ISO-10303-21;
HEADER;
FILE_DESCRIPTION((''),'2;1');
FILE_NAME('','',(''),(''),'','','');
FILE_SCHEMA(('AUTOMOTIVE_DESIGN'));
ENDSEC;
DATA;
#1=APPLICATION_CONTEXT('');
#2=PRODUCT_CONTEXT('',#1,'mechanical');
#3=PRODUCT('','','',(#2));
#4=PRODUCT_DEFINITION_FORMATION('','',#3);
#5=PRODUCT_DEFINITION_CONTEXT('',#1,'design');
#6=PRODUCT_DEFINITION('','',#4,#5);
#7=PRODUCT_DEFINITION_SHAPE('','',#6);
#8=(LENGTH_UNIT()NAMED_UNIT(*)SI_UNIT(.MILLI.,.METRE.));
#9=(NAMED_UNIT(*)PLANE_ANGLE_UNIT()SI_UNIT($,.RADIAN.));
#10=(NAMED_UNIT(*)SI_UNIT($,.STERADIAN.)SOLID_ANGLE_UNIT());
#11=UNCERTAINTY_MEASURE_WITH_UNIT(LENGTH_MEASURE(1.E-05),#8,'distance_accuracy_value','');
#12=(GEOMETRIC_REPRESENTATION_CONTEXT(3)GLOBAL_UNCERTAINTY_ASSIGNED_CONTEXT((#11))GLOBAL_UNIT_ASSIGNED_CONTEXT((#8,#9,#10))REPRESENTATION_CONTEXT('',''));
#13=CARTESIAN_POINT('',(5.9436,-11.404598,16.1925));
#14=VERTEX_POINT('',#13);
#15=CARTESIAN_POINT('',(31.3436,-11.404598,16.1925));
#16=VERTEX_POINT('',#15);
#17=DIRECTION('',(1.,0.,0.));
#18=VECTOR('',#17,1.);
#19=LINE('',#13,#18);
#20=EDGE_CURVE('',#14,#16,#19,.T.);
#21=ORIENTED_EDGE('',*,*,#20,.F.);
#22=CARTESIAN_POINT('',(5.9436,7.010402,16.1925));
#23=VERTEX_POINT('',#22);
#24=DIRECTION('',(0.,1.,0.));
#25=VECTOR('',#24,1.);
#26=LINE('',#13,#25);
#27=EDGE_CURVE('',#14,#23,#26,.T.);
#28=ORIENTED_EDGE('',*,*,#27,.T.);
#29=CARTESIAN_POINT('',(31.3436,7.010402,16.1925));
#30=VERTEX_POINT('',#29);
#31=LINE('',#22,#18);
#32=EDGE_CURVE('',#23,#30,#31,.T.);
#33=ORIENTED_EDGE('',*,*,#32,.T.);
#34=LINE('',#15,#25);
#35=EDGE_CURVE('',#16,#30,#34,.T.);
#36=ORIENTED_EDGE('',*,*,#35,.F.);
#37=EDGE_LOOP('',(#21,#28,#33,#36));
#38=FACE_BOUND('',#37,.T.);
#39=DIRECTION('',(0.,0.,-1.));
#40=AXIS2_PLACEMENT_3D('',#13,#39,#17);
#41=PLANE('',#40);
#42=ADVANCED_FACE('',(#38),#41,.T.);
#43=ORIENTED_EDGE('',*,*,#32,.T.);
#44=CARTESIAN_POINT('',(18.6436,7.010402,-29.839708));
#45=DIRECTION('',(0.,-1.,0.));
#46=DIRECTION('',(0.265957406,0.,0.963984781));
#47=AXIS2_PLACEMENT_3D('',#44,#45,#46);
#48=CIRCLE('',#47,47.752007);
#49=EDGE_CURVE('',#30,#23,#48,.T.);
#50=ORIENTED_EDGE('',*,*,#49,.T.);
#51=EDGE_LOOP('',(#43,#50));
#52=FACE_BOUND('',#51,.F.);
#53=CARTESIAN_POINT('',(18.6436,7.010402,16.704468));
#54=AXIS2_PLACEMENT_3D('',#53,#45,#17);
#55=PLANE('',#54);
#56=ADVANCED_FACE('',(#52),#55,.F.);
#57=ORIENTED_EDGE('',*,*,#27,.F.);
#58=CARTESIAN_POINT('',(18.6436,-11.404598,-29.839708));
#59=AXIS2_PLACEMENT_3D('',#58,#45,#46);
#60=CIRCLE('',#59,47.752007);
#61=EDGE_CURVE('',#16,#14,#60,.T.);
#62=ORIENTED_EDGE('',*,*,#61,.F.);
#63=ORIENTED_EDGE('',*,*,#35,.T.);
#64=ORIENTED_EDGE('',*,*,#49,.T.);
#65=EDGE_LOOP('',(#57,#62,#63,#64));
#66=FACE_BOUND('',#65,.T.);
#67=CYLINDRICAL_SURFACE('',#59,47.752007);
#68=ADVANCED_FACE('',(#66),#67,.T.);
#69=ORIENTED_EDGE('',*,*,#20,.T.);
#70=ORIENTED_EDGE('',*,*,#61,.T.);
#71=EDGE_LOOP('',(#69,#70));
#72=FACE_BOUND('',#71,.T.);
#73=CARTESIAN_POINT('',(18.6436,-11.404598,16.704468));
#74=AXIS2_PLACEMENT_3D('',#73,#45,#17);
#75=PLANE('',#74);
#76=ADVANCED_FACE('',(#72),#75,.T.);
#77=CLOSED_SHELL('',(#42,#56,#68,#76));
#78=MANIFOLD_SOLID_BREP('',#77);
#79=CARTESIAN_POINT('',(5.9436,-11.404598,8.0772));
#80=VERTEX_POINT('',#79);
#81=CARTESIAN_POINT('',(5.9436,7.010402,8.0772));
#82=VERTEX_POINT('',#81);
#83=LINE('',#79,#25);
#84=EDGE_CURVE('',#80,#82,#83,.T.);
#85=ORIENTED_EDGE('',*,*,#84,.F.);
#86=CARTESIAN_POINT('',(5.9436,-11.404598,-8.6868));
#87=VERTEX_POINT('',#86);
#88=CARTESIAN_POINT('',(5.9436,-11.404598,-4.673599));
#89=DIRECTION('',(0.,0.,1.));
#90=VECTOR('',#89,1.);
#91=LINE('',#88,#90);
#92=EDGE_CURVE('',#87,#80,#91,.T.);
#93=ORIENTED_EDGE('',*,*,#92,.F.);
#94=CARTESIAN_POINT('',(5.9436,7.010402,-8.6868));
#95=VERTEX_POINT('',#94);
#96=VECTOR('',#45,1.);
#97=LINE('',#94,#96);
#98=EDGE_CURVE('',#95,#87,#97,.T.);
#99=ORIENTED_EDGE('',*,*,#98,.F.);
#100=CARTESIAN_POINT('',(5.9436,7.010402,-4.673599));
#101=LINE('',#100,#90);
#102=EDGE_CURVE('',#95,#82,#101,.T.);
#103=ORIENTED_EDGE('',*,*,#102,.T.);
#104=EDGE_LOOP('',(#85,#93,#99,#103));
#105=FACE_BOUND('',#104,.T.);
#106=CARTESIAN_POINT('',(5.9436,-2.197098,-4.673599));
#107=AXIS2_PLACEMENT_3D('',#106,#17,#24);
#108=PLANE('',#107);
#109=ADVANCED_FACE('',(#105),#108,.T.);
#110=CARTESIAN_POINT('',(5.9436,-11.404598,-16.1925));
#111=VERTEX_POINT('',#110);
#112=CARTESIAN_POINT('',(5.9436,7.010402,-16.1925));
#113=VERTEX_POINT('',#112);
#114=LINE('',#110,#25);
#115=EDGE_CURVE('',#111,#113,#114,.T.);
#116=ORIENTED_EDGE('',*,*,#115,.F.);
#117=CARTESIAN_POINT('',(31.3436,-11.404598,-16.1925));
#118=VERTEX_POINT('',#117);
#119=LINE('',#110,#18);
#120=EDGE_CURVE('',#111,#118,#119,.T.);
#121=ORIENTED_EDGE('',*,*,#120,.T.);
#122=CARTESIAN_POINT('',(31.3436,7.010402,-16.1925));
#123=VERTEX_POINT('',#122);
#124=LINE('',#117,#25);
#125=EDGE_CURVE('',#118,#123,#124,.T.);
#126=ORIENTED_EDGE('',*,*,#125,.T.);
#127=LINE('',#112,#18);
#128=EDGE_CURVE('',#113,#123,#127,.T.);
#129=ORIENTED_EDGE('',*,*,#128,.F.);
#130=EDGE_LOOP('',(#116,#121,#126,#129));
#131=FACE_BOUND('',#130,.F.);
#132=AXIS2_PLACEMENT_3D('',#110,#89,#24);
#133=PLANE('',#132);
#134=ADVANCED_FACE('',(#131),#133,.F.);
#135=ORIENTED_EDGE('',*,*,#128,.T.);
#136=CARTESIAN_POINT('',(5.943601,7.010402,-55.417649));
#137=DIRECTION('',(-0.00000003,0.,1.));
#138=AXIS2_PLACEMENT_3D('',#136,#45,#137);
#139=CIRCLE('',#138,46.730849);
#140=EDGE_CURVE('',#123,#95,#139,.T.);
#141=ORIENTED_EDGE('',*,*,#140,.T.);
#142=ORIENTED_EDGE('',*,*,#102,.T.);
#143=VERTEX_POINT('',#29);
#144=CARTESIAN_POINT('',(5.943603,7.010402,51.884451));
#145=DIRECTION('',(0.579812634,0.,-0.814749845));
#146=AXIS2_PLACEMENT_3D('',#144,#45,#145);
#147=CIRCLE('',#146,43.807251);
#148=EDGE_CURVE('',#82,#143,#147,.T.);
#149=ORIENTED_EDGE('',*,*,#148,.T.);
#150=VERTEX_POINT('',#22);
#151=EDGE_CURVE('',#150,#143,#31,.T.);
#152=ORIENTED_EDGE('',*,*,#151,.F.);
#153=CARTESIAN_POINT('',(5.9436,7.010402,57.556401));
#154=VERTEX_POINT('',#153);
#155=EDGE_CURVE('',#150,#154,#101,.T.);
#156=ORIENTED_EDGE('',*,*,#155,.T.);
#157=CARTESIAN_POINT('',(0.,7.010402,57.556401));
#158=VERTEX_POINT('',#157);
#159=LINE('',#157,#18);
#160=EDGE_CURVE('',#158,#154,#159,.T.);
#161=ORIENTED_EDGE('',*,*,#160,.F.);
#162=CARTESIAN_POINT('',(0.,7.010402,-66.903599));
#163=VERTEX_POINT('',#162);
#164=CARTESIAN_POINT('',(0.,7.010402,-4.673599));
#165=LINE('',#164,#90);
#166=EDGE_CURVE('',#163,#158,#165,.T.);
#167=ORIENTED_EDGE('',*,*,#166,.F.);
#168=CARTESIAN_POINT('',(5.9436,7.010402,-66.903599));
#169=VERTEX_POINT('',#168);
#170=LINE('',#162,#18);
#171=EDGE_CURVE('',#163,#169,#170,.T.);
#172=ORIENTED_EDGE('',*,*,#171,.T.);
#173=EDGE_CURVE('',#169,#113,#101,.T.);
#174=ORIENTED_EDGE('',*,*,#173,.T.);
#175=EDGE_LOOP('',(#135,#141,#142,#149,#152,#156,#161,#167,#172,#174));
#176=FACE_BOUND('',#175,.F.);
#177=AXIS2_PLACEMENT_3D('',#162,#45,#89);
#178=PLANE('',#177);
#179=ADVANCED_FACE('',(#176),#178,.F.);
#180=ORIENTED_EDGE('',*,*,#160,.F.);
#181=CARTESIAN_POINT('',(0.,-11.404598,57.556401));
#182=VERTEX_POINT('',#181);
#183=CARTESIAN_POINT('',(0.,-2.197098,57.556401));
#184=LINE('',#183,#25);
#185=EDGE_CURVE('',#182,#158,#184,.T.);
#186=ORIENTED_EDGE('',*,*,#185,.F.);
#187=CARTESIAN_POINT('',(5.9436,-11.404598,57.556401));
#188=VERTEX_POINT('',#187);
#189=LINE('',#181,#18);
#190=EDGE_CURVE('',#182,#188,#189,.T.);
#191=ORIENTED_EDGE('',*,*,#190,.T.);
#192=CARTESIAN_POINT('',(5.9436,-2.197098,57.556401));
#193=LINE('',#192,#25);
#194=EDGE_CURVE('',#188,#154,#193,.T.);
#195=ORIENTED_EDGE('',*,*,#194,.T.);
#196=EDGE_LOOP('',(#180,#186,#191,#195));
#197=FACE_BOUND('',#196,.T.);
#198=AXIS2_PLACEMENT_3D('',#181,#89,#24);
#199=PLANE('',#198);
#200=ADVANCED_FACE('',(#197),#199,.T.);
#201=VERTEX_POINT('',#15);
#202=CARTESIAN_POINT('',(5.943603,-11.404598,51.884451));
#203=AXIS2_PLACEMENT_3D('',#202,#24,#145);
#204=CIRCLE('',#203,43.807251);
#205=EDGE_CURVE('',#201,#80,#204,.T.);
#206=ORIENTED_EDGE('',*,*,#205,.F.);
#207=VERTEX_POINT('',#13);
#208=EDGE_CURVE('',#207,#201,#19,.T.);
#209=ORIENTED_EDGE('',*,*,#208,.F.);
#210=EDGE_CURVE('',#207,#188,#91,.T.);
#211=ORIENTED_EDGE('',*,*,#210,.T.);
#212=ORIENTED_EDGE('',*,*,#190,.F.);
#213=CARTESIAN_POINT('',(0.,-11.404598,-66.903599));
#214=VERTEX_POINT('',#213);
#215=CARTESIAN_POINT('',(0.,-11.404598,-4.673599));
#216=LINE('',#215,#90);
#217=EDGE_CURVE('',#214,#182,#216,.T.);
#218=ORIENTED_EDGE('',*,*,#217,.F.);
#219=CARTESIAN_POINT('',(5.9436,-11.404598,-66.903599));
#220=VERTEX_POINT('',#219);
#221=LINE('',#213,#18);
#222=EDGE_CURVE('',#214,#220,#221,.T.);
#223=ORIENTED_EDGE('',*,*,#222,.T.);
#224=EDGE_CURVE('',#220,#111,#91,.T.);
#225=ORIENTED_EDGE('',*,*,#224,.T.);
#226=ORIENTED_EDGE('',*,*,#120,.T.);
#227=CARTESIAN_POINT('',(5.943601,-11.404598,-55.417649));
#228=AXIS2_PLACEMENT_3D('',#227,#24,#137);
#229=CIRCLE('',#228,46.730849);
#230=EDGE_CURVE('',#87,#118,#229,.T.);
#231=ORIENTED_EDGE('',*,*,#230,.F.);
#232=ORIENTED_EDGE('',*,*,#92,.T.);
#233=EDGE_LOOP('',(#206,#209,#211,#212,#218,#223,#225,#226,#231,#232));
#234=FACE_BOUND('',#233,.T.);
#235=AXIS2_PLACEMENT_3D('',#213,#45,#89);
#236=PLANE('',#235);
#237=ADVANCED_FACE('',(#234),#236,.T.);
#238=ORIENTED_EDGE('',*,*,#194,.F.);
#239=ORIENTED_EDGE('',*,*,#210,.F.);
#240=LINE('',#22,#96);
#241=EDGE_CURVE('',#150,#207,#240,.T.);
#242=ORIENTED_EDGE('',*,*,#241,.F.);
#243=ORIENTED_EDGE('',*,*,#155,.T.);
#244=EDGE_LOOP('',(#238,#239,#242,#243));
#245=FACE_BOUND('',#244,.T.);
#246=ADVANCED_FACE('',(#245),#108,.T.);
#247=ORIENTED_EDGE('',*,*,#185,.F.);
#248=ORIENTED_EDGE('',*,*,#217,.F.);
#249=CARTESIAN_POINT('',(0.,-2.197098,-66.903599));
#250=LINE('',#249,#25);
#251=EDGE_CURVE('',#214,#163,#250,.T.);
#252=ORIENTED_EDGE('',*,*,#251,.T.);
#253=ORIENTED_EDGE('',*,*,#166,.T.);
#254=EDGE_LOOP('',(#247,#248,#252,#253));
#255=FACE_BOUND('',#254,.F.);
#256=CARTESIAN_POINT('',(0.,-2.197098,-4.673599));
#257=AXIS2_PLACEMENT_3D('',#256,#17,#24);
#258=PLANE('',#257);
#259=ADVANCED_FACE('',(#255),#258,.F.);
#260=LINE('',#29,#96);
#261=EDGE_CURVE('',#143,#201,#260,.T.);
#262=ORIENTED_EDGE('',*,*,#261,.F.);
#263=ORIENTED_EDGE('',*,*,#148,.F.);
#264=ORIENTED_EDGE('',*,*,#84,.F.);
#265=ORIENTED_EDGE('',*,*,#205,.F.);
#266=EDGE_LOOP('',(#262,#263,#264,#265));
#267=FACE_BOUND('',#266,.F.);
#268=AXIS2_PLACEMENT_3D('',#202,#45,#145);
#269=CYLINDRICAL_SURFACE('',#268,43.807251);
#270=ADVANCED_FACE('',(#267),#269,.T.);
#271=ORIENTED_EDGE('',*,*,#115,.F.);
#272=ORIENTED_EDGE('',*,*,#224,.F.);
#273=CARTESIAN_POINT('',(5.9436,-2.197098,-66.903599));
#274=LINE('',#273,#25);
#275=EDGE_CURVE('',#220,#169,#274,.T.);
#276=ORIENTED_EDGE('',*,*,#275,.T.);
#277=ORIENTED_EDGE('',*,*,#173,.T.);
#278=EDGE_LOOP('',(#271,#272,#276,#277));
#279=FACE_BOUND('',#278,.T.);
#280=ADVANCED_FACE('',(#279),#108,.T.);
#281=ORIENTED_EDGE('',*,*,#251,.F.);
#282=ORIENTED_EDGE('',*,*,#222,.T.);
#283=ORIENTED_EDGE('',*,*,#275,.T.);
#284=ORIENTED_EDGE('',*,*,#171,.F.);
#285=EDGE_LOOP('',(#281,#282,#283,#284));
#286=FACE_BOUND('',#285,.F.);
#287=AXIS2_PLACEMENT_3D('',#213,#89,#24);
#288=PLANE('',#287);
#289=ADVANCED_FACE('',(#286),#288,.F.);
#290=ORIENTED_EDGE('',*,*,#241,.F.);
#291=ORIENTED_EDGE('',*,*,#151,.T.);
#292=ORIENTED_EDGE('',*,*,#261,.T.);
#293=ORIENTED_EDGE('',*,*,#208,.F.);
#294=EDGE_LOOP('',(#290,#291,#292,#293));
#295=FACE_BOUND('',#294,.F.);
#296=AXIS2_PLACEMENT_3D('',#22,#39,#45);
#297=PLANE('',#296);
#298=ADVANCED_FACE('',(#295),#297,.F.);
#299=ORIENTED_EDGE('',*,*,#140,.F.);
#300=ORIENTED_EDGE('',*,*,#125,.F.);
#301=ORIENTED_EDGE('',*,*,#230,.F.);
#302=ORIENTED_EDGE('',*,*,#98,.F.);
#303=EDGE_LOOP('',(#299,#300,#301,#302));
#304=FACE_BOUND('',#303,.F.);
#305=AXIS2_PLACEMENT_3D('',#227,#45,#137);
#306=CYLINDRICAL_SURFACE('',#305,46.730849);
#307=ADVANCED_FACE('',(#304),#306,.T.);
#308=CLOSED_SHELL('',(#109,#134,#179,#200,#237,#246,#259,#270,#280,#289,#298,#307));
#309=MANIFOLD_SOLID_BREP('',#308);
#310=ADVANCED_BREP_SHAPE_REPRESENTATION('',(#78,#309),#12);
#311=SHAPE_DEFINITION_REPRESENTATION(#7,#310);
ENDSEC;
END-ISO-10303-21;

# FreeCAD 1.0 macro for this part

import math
import FreeCAD as App
import Part
import Sketcher

V = App.Vector
Q = App.Units.Quantity


def add_polygon(sketch, points):
    """Adds a closed chain of lines whose ends are joined by coincident constraints."""
    first, n = sketch.GeometryCount, len(points)
    for a, b in zip(points, points[1:] + points[:1]):
        sketch.addGeometry(Part.LineSegment(App.Vector(*a, 0), App.Vector(*b, 0)), False)
    for i in range(n):
        sketch.addConstraint(Sketcher.Constraint("Coincident", first + i, 2, first + (i + 1) % n, 1))

doc = App.newDocument("Part")
params = doc.addObject("Spreadsheet::Sheet", "Params")
for row, (alias, value) in enumerate([
    ("sketch1_height", "4.9 in"),
    ("sketch1_width", "0.725 in"),
    ("pad1_length", "0.234 in"),
    ("sketch2_width", "0.725 in"),
    ("pad2_length", "1 in"),
    ("sketch3_width", "0.725 in"),
    ("pad3_length", "1 in"),
    ("sketch4_width", "1 in"),
    ("pocket1_length", "2 in"),
    ("sketch5_width", "1 in"),
    ("pad4_length", "0.725 in"),
], start=1):
    params.set(f"A{row}", alias)
    params.set(f"B{row}", "=" + value)
    params.setAlias(f"B{row}", alias)

body = doc.addObject("PartDesign::Body", "Body")

# Sketch on YZ plane
sketch1 = body.newObject("Sketcher::SketchObject", "Sketch")
sketch1.AttachmentSupport = (doc.getObject("YZ_Plane"), [""])
sketch1.MapMode = "FlatFace"
add_polygon(sketch1, [(-11, 58), (-11, -67), (7, -67), (7, 58)])  # lines 0-3
sketch1.addConstraint([
    Sketcher.Constraint("Vertical", 0),
    Sketcher.Constraint("Horizontal", 1),
    Sketcher.Constraint("Vertical", 2),
    Sketcher.Constraint("Horizontal", 3),
    Sketcher.Constraint("DistanceY", 0, 2, 0, 1, Q("4.9 in")),
    Sketcher.Constraint("DistanceX", 1, 1, 1, 2, Q("0.725 in")),
    Sketcher.Constraint("DistanceX", 0, 2, -1, 1, Q("0.4489999 in")),
    Sketcher.Constraint("DistanceY", 0, 2, -1, 1, Q("2.634 in")),
])
sketch1.setExpression("Constraints[8]", "Params.sketch1_height")
sketch1.setExpression("Constraints[9]", "Params.sketch1_width")
pad1 = body.newObject("PartDesign::Pad", "Pad")
pad1.Profile = sketch1
pad1.setExpression("Length", "Params.pad1_length")

# Sketch on YZ plane
sketch2 = body.newObject("Sketcher::SketchObject", "Sketch001")
sketch2.AttachmentSupport = (doc.getObject("YZ_Plane"), [""])
sketch2.MapMode = "FlatFace"
sketch2.AttachmentOffset = App.Placement(V(0, 0, 0.234 * 25.4), App.Rotation())
add_polygon(sketch2, [(-11, -16), (7, -16), (7, -9), (-11, -9)])  # lines 0-3
add_polygon(sketch2, [(7, 16), (-11, 16), (-11, 8), (7, 8)])  # lines 4-7
sketch2.addConstraint([
    Sketcher.Constraint("Horizontal", 0),
    Sketcher.Constraint("Vertical", 1),
    Sketcher.Constraint("Horizontal", 2),
    Sketcher.Constraint("Vertical", 3),
    Sketcher.Constraint("Horizontal", 4),
    Sketcher.Constraint("Vertical", 5),
    Sketcher.Constraint("Horizontal", 6),
    Sketcher.Constraint("Vertical", 7),
    Sketcher.Constraint("Symmetric", 3, 2, 4, 2, -1),
    Sketcher.Constraint("Vertical", 1, 2, 6, 2),
    Sketcher.Constraint("DistanceX", 0, 1, 0, 2, Q("0.725 in")),
    Sketcher.Constraint("DistanceY", 2, 2, 5, 2, Q("0.66 in")),
    Sketcher.Constraint("DistanceY", 1, 1, 1, 2, Q("0.2955 in")),
    Sketcher.Constraint("DistanceY", 5, 2, 5, 1, Q("0.3195 in")),
    Sketcher.Constraint("DistanceX", -1, 1, 0, 2, Q("0.2760001 in")),
])
sketch2.setExpression("Constraints[18]", "Params.sketch2_width")
pad2 = body.newObject("PartDesign::Pad", "Pad001")
pad2.Profile = sketch2
pad2.setExpression("Length", "Params.pad2_length")

# Sketch on YZ plane
sketch3 = body.newObject("Sketcher::SketchObject", "Sketch002")
sketch3.AttachmentSupport = (doc.getObject("YZ_Plane"), [""])
sketch3.MapMode = "FlatFace"
sketch3.AttachmentOffset = App.Placement(V(0, 0, 0.234 * 25.4), App.Rotation())
add_polygon(sketch3, [(-11, -16), (7, -16), (7, -9), (-11, -9)])  # lines 0-3
sketch3.addConstraint([
    Sketcher.Constraint("Horizontal", 0),
    Sketcher.Constraint("Vertical", 1),
    Sketcher.Constraint("Horizontal", 2),
    Sketcher.Constraint("Vertical", 3),
    Sketcher.Constraint("DistanceX", 0, 1, 0, 2, Q("0.725 in")),
    Sketcher.Constraint("DistanceY", 1, 1, 1, 2, Q("0.2955 in")),
    Sketcher.Constraint("DistanceX", -1, 1, 0, 2, Q("0.2760001 in")),
    Sketcher.Constraint("DistanceY", 1, 2, -1, 1, Q("0.342 in")),
])
sketch3.setExpression("Constraints[8]", "Params.sketch3_width")
pad3 = body.newObject("PartDesign::Pad", "Pad002")
pad3.Profile = sketch3
pad3.setExpression("Length", "Params.pad3_length")

# Sketch on XZ plane
sketch4 = body.newObject("Sketcher::SketchObject", "Sketch003")
sketch4.AttachmentSupport = (doc.getObject("XZ_Plane"), [""])
sketch4.MapMode = "FlatFace"
sketch4.AttachmentOffset = App.Placement(V(0, 0, 0.4489999 * 25.4), App.Rotation())
sketch4.addGeometry([
    Part.LineSegment(V(31, -16, 0), V(6, -16, 0)),  # 0
    Part.ArcOfCircle(Part.Circle(V(19, 30, 0), V(0, 0, 1), 48), math.radians(-105), math.radians(-75)),  # 1
    Part.LineSegment(V(6, 16, 0), V(31, 16, 0)),  # 2
    Part.ArcOfCircle(Part.Circle(V(19, -30, 0), V(0, 0, 1), 48), math.radians(75), math.radians(105)),  # 3
    Part.LineSegment(V(31, -9, 0), V(6, -9, 0)),  # 4
    Part.ArcOfCircle(Part.Circle(V(6, -55, 0), V(0, 0, 1), 47), math.radians(57), math.radians(90)),  # 5
    Part.LineSegment(V(31, -16, 0), V(31, -9, 0)),  # 6
    Part.ArcOfCircle(Part.Circle(V(6, 52, 0), V(0, 0, 1), 44), math.radians(-90), math.radians(-55)),  # 7
    Part.LineSegment(V(6, 8, 0), V(31, 8, 0)),  # 8
    Part.LineSegment(V(31, 8, 0), V(31, 16, 0)),  # 9
], False)
sketch4.addConstraint([
    Sketcher.Constraint("Coincident", 0, 1, 1, 2),
    Sketcher.Constraint("Coincident", 1, 1, 0, 2),
    Sketcher.Constraint("Coincident", 2, 1, 3, 2),
    Sketcher.Constraint("Coincident", 3, 1, 2, 2),
    Sketcher.Constraint("Tangent", 4, 2, 5, 2),
    Sketcher.Constraint("Coincident", 5, 1, 6, 1),
    Sketcher.Constraint("Coincident", 6, 2, 4, 1),
    Sketcher.Constraint("Tangent", 7, 1, 8, 1),
    Sketcher.Constraint("Coincident", 8, 2, 9, 1),
    Sketcher.Constraint("Coincident", 9, 2, 7, 2),
    Sketcher.Constraint("Horizontal", 0),
    Sketcher.Constraint("Horizontal", 2),
    Sketcher.Constraint("Horizontal", 4),
    Sketcher.Constraint("Vertical", 6),
    Sketcher.Constraint("Horizontal", 8),
    Sketcher.Constraint("Vertical", 9),
    Sketcher.Constraint("Coincident", 5, 1, 0, 1),
    Sketcher.Constraint("Coincident", 9, 2, 3, 1),
    Sketcher.Constraint("Equal", 1, 3),
    Sketcher.Constraint("Symmetric", 1, 3, 3, 3, -1),
    Sketcher.Constraint("Vertical", 5, 3, 7, 3),
    Sketcher.Constraint("Vertical", 5, 3, 1, 1),
    Sketcher.Constraint("Vertical", 1, 1, 2, 1),
    Sketcher.Constraint("DistanceX", 0, 2, 0, 1, Q("1 in")),
    Sketcher.Constraint("DistanceY", 4, 2, 7, 1, Q("0.66 in")),
    Sketcher.Constraint("DistanceY", 6, 1, 6, 2, Q("0.2955 in")),
    Sketcher.Constraint("DistanceY", 9, 1, 9, 2, Q("0.3195 in")),
    Sketcher.Constraint("DistanceX", -1, 1, 1, 3, Q("0.734 in")),
    Sketcher.Constraint("Radius", 1, 47.752007),
])
sketch4.setExpression("Constraints[23]", "Params.sketch4_width")
pocket1 = body.newObject("PartDesign::Pocket", "Pocket")
pocket1.Profile = sketch4
pocket1.setExpression("Length", "Params.pocket1_length")
body2 = doc.addObject("PartDesign::Body", "Body001")

# Sketch on XZ plane
sketch5 = body2.newObject("Sketcher::SketchObject", "Sketch004")
sketch5.AttachmentSupport = (doc.getObject("XZ_Plane001"), [""])
sketch5.MapMode = "FlatFace"
sketch5.AttachmentOffset = App.Placement(V(0, 0, 0.4489999 * 25.4), App.Rotation())
sketch5.addGeometry([
    Part.LineSegment(V(6, 16, 0), V(31, 16, 0)),
    Part.ArcOfCircle(Part.Circle(V(19, -30, 0), V(0, 0, 1), 48), math.radians(75), math.radians(105)),
], False)
sketch5.addConstraint([
    Sketcher.Constraint("Coincident", 0, 1, 1, 2),
    Sketcher.Constraint("Coincident", 1, 1, 0, 2),
    Sketcher.Constraint("Horizontal", 0),
    Sketcher.Constraint("DistanceX", 0, 1, 0, 2, Q("1 in")),
    Sketcher.Constraint("DistanceX", -1, 1, 1, 3, Q("0.734 in")),
    Sketcher.Constraint("DistanceY", -1, 1, 0, 1, Q("0.6375 in")),
    Sketcher.Constraint("Radius", 1, 47.752007),
])
sketch5.setExpression("Constraints[3]", "Params.sketch5_width")
pad4 = body2.newObject("PartDesign::Pad", "Pad003")
pad4.Profile = sketch5
pad4.setExpression("Length", "Params.pad4_length")
pad4.Reversed = True

doc.recompute()
